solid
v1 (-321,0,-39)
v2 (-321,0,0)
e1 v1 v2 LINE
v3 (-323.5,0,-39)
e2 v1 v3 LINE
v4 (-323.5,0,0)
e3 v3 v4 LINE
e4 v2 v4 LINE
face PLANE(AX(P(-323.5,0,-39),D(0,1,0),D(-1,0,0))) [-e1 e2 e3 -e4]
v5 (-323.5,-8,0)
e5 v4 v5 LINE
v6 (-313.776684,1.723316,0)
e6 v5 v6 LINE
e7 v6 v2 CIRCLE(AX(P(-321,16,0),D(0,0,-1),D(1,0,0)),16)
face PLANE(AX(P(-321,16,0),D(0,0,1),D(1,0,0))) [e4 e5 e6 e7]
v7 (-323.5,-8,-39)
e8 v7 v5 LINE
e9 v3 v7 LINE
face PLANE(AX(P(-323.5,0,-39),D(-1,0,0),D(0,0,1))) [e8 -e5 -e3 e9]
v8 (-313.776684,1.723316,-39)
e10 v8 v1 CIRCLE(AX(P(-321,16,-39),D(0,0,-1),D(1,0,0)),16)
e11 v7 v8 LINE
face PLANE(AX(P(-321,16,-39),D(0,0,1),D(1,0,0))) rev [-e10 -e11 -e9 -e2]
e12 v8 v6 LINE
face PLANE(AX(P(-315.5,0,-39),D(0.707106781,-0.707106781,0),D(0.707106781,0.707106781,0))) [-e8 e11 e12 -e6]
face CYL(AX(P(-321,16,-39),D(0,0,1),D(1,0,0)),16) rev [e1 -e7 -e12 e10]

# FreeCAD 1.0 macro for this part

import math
import FreeCAD as App
import Part
import Sketcher
Q = App.Units.Quantity

doc = App.newDocument("Part")
body = doc.addObject("PartDesign::Body", "Body")

# Sketch on XY plane
sketch1 = body.newObject("Sketcher::SketchObject", "Sketch")
sketch1.AttachmentSupport = (doc.getObject("XY_Plane"), [""])
sketch1.MapMode = "FlatFace"
sketch1.addGeometry([
    Part.LineSegment(App.Vector(-323.5, 0, 0), App.Vector(-323.5, -8, 0)),
    Part.LineSegment(App.Vector(-323.5, -8, 0), App.Vector(-313.8, 1.7, 0)),
    Part.ArcOfCircle(Part.Circle(App.Vector(-321, 16, 0), App.Vector(0, 0, 1), 16), math.radians(-90), math.radians(-63)),
    Part.LineSegment(App.Vector(-321, 0, 0), App.Vector(-323.5, 0, 0)),
], False)
sketch1.addConstraint([
    Sketcher.Constraint("Coincident", 0, 2, 1, 1),
    Sketcher.Constraint("Coincident", 1, 2, 2, 2),
    Sketcher.Constraint("Tangent", 2, 1, 3, 1),
    Sketcher.Constraint("Coincident", 3, 2, 0, 1),
    Sketcher.Constraint("Vertical", 0),
    Sketcher.Constraint("Horizontal", 3),
    Sketcher.Constraint("PointOnObject", 2, 1, -1),
    Sketcher.Constraint("DistanceY", 0, 2, 0, 1, Q("8 mm")),
    Sketcher.Constraint("Angle", 1, Q("45 deg")),
    Sketcher.Constraint("DistanceX", 3, 2, 3, 1, Q("2.5 mm")),
    Sketcher.Constraint("DistanceX", 2, 3, -1, 1, Q("321 mm")),
    Sketcher.Constraint("Radius", 2, Q("15.999998 mm")),
])
pad1 = body.newObject("PartDesign::Pad", "Pad")
pad1.Profile = sketch1
pad1.Length = 39
pad1.Reversed = True

doc.recompute()
